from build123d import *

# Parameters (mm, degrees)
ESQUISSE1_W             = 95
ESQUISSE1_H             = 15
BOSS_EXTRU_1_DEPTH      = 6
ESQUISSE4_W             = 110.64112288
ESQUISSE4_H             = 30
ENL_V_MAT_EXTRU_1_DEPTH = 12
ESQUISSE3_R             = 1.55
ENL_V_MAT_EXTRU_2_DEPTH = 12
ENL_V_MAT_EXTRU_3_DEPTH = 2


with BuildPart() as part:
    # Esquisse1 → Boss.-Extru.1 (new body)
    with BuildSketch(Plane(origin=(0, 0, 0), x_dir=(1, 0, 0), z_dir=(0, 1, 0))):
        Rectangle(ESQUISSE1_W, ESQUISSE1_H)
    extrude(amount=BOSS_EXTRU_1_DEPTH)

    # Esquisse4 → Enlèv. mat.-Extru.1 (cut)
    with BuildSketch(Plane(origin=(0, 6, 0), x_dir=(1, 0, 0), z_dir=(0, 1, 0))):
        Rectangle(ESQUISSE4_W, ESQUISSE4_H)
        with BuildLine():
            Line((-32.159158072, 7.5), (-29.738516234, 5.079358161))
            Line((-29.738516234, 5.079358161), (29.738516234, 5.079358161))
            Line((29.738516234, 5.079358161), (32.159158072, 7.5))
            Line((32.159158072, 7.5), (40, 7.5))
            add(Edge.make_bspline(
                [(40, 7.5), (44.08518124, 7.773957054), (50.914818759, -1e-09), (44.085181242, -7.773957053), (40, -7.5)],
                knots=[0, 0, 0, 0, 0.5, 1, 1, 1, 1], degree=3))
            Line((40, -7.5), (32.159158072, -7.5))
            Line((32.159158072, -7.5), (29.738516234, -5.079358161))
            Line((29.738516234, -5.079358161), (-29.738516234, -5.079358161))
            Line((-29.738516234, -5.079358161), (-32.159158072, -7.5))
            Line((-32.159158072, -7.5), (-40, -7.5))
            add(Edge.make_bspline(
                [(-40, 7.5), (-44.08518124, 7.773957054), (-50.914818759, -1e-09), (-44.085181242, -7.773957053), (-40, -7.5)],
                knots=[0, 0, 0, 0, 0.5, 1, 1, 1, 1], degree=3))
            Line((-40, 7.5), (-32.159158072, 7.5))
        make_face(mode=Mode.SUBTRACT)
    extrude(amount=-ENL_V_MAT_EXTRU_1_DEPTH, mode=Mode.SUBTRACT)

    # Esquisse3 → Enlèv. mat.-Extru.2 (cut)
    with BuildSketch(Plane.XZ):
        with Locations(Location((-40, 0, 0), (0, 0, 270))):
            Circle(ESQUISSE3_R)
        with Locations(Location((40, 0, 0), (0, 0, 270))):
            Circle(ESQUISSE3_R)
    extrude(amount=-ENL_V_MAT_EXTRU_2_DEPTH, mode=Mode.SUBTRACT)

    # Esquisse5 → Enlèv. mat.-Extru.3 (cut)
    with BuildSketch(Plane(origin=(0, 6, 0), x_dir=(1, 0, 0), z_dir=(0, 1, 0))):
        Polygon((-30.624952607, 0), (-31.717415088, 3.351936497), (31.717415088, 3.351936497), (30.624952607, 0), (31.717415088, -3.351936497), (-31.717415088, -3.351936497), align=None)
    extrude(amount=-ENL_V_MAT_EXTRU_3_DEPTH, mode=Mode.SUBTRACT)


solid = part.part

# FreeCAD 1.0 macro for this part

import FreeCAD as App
import Part
import Sketcher

V = App.Vector

doc = App.newDocument("Part")
body = doc.addObject("PartDesign::Body", "Body")

sketch1 = body.newObject("Sketcher::SketchObject", "Sketch")
sketch1.AttachmentSupport = (doc.getObject("XZ_Plane"), [""])
sketch1.MapMode = "FlatFace"
sketch1.addGeometry([
    Part.LineSegment(V(-47.5, -7.5, 0), V(-47.5, 7.5, 0)),
    Part.LineSegment(V(-47.5, 7.5, 0), V(47.5, 7.5, 0)),
    Part.LineSegment(V(47.5, 7.5, 0), V(47.5, -7.5, 0)),
    Part.LineSegment(V(47.5, -7.5, 0), V(-47.5, -7.5, 0)),
], False)
sketch1.addConstraint([
    Sketcher.Constraint("Coincident", 0, 2, 1, 1),
    Sketcher.Constraint("Coincident", 1, 2, 2, 1),
    Sketcher.Constraint("Coincident", 2, 2, 3, 1),
    Sketcher.Constraint("Coincident", 3, 2, 0, 1),
    Sketcher.Constraint("Vertical", 0),
    Sketcher.Constraint("Horizontal", 1),
    Sketcher.Constraint("Vertical", 2),
    Sketcher.Constraint("Horizontal", 3),
    Sketcher.Constraint("Symmetric", 0, 2, 2, 2, -1, 1),
    Sketcher.Constraint("DistanceX", 1, 1, 1, 2, 95.0),
    Sketcher.Constraint("DistanceY", 0, 1, 0, 2, 15.0),
])
pad1 = body.newObject("PartDesign::Pad", "Pad")
pad1.Profile = sketch1
pad1.Length = 6
pad1.Reversed = True

sketch2 = body.newObject("Sketcher::SketchObject", "Sketch001")
sketch2.AttachmentSupport = (doc.getObject("XZ_Plane"), [""])
sketch2.MapMode = "FlatFace"
sketch2.AttachmentOffset = App.Placement(V(0, 0, -6), App.Rotation())
sketch2.addGeometry([
    Part.LineSegment(V(-55.320561, -15, 0), V(-55.320561, 15, 0)),
    Part.LineSegment(V(-55.320561, 15, 0), V(55.320561, 15, 0)),
    Part.LineSegment(V(55.320561, 15, 0), V(55.320561, -15, 0)),
    Part.LineSegment(V(55.320561, -15, 0), V(-55.320561, -15, 0)),
    Part.LineSegment(V(-40, -7.5, 0), V(-32.159158, -7.5, 0)),
    Part.LineSegment(V(-32.159158, -7.5, 0), V(-29.738516, -5.079358, 0)),
    Part.LineSegment(V(-29.738516, -5.079358, 0), V(29.738516, -5.079358, 0)),
    Part.LineSegment(V(29.738516, -5.079358, 0), V(32.159158, -7.5, 0)),
    Part.LineSegment(V(32.159158, -7.5, 0), V(40, -7.5, 0)),
    Part.BSplineCurve([V(40, -7.5, 0), V(44.085181, -7.773957, 0), V(50.914819, 0, 0), V(44.085181, 7.773957, 0), V(40, 7.5, 0)], [4, 1, 4], [0, 0.5, 1], False, 3, [1, 1, 1, 1, 1], False),
    Part.LineSegment(V(40, 7.5, 0), V(32.159158, 7.5, 0)),
    Part.LineSegment(V(32.159158, 7.5, 0), V(29.738516, 5.079358, 0)),
    Part.LineSegment(V(29.738516, 5.079358, 0), V(-29.738516, 5.079358, 0)),
    Part.LineSegment(V(-29.738516, 5.079358, 0), V(-32.159158, 7.5, 0)),
    Part.LineSegment(V(-32.159158, 7.5, 0), V(-40, 7.5, 0)),
    Part.BSplineCurve([V(-40, -7.5, 0), V(-44.085181, -7.773957, 0), V(-50.914819, 0, 0), V(-44.085181, 7.773957, 0), V(-40, 7.5, 0)], [4, 1, 4], [0, 0.5, 1], False, 3, [1, 1, 1, 1, 1], False),
], False)
sketch2.addConstraint([
    Sketcher.Constraint("Block", 9),
    Sketcher.Constraint("Block", 15),
    Sketcher.Constraint("Coincident", 0, 2, 1, 1),
    Sketcher.Constraint("Coincident", 1, 2, 2, 1),
    Sketcher.Constraint("Coincident", 2, 2, 3, 1),
    Sketcher.Constraint("Coincident", 3, 2, 0, 1),
    Sketcher.Constraint("Coincident", 4, 2, 5, 1),
    Sketcher.Constraint("Coincident", 5, 2, 6, 1),
    Sketcher.Constraint("Coincident", 6, 2, 7, 1),
    Sketcher.Constraint("Coincident", 7, 2, 8, 1),
    Sketcher.Constraint("Coincident", 8, 2, 9, 1),
    Sketcher.Constraint("Coincident", 9, 2, 10, 1),
    Sketcher.Constraint("Coincident", 10, 2, 11, 1),
    Sketcher.Constraint("Coincident", 11, 2, 12, 1),
    Sketcher.Constraint("Coincident", 12, 2, 13, 1),
    Sketcher.Constraint("Coincident", 13, 2, 14, 1),
    Sketcher.Constraint("Coincident", 14, 2, 15, 2),
    Sketcher.Constraint("Coincident", 15, 1, 4, 1),
    Sketcher.Constraint("Vertical", 0),
    Sketcher.Constraint("Horizontal", 1),
    Sketcher.Constraint("Vertical", 2),
    Sketcher.Constraint("Horizontal", 3),
    Sketcher.Constraint("Horizontal", 4),
    Sketcher.Constraint("Horizontal", 6),
    Sketcher.Constraint("Horizontal", 8),
    Sketcher.Constraint("Horizontal", 10),
    Sketcher.Constraint("Horizontal", 12),
    Sketcher.Constraint("Horizontal", 14),
    Sketcher.Constraint("DistanceY", 0, 1, 0, 2, 30.0),
    Sketcher.Constraint("DistanceY", -1, 1, 0, 2, 15.0),
    Sketcher.Constraint("DistanceX", 4, 1, 4, 2, 7.840842),
    Sketcher.Constraint("DistanceX", 8, 1, 8, 2, 7.840842),
    Sketcher.Constraint("DistanceX", 10, 2, 10, 1, 7.840842),
    Sketcher.Constraint("DistanceX", 14, 2, 14, 1, 7.840842),
    Sketcher.Constraint("DistanceX", 1, 1, 1, 2, 110.641123),
    Sketcher.Constraint("DistanceX", 6, 1, 6, 2, 59.477032),
    Sketcher.Constraint("DistanceX", 12, 2, 12, 1, 59.477032),
    Sketcher.Constraint("DistanceX", 0, 2, -1, 1, 55.320561),
    Sketcher.Constraint("DistanceY", 5, 2, -1, 1, 5.079358),
    Sketcher.Constraint("DistanceY", -1, 1, 11, 2, 5.079358),
    Sketcher.Constraint("DistanceX", 4, 2, 5, 2, 2.420642),
    Sketcher.Constraint("DistanceX", 11, 2, 10, 2, 2.420642),
])
pocket1 = body.newObject("PartDesign::Pocket", "Pocket")
pocket1.Profile = sketch2
pocket1.Length = 12
pocket1.Reversed = True

sketch3 = body.newObject("Sketcher::SketchObject", "Sketch002")
sketch3.AttachmentSupport = (doc.getObject("XZ_Plane"), [""])
sketch3.MapMode = "FlatFace"
sketch3.addGeometry([
    Part.Circle(V(-40, 0, 0), V(0, 0, 1), 1.55),
    Part.Circle(V(40, 0, 0), V(0, 0, 1), 1.55),
], False)
sketch3.addConstraint([
    Sketcher.Constraint("Equal", 0, 1),
    Sketcher.Constraint("Symmetric", 0, 3, 1, 3, -1, 1),
    Sketcher.Constraint("PointOnObject", 0, 3, -1),
    Sketcher.Constraint("Diameter", 0, 3.1),
    Sketcher.Constraint("DistanceX", 0, 3, -1, 1, 40.0),
])
pocket2 = body.newObject("PartDesign::Pocket", "Pocket001")
pocket2.Profile = sketch3
pocket2.Length = 12

sketch4 = body.newObject("Sketcher::SketchObject", "Sketch003")
sketch4.AttachmentSupport = (doc.getObject("XZ_Plane"), [""])
sketch4.MapMode = "FlatFace"
sketch4.AttachmentOffset = App.Placement(V(0, 0, -6), App.Rotation())
sketch4.addGeometry([
    Part.LineSegment(V(-31.717415, -3.351936, 0), V(-30.624953, 0, 0)),
    Part.LineSegment(V(-30.624953, 0, 0), V(-31.717415, 3.351936, 0)),
    Part.LineSegment(V(-31.717415, 3.351936, 0), V(31.717415, 3.351936, 0)),
    Part.LineSegment(V(31.717415, 3.351936, 0), V(30.624953, 0, 0)),
    Part.LineSegment(V(30.624953, 0, 0), V(31.717415, -3.351936, 0)),
    Part.LineSegment(V(31.717415, -3.351936, 0), V(-31.717415, -3.351936, 0)),
], False)
sketch4.addConstraint([
    Sketcher.Constraint("Coincident", 0, 2, 1, 1),
    Sketcher.Constraint("Coincident", 1, 2, 2, 1),
    Sketcher.Constraint("Coincident", 2, 2, 3, 1),
    Sketcher.Constraint("Coincident", 3, 2, 4, 1),
    Sketcher.Constraint("Coincident", 4, 2, 5, 1),
    Sketcher.Constraint("Coincident", 5, 2, 0, 1),
    Sketcher.Constraint("Horizontal", 2),
    Sketcher.Constraint("Horizontal", 5),
    Sketcher.Constraint("Symmetric", 0, 2, 3, 2, -1, 1),
    Sketcher.Constraint("Symmetric", 1, 2, 4, 2, -1, 1),
    Sketcher.Constraint("PointOnObject", 0, 2, -1),
    Sketcher.Constraint("Parallel", 0, 3),
    Sketcher.Constraint("Vertical", 2, 2, 4, 2),
    Sketcher.Constraint("DistanceX", 2, 1, 2, 2, 63.43483),
    Sketcher.Constraint("Distance", 0, 3.525472),
    Sketcher.Constraint("DistanceX", 0, 2, -1, 1, 30.624953),
])
pocket3 = body.newObject("PartDesign::Pocket", "Pocket002")
pocket3.Profile = sketch4
pocket3.Length = 2
pocket3.Reversed = True

doc.recompute()
